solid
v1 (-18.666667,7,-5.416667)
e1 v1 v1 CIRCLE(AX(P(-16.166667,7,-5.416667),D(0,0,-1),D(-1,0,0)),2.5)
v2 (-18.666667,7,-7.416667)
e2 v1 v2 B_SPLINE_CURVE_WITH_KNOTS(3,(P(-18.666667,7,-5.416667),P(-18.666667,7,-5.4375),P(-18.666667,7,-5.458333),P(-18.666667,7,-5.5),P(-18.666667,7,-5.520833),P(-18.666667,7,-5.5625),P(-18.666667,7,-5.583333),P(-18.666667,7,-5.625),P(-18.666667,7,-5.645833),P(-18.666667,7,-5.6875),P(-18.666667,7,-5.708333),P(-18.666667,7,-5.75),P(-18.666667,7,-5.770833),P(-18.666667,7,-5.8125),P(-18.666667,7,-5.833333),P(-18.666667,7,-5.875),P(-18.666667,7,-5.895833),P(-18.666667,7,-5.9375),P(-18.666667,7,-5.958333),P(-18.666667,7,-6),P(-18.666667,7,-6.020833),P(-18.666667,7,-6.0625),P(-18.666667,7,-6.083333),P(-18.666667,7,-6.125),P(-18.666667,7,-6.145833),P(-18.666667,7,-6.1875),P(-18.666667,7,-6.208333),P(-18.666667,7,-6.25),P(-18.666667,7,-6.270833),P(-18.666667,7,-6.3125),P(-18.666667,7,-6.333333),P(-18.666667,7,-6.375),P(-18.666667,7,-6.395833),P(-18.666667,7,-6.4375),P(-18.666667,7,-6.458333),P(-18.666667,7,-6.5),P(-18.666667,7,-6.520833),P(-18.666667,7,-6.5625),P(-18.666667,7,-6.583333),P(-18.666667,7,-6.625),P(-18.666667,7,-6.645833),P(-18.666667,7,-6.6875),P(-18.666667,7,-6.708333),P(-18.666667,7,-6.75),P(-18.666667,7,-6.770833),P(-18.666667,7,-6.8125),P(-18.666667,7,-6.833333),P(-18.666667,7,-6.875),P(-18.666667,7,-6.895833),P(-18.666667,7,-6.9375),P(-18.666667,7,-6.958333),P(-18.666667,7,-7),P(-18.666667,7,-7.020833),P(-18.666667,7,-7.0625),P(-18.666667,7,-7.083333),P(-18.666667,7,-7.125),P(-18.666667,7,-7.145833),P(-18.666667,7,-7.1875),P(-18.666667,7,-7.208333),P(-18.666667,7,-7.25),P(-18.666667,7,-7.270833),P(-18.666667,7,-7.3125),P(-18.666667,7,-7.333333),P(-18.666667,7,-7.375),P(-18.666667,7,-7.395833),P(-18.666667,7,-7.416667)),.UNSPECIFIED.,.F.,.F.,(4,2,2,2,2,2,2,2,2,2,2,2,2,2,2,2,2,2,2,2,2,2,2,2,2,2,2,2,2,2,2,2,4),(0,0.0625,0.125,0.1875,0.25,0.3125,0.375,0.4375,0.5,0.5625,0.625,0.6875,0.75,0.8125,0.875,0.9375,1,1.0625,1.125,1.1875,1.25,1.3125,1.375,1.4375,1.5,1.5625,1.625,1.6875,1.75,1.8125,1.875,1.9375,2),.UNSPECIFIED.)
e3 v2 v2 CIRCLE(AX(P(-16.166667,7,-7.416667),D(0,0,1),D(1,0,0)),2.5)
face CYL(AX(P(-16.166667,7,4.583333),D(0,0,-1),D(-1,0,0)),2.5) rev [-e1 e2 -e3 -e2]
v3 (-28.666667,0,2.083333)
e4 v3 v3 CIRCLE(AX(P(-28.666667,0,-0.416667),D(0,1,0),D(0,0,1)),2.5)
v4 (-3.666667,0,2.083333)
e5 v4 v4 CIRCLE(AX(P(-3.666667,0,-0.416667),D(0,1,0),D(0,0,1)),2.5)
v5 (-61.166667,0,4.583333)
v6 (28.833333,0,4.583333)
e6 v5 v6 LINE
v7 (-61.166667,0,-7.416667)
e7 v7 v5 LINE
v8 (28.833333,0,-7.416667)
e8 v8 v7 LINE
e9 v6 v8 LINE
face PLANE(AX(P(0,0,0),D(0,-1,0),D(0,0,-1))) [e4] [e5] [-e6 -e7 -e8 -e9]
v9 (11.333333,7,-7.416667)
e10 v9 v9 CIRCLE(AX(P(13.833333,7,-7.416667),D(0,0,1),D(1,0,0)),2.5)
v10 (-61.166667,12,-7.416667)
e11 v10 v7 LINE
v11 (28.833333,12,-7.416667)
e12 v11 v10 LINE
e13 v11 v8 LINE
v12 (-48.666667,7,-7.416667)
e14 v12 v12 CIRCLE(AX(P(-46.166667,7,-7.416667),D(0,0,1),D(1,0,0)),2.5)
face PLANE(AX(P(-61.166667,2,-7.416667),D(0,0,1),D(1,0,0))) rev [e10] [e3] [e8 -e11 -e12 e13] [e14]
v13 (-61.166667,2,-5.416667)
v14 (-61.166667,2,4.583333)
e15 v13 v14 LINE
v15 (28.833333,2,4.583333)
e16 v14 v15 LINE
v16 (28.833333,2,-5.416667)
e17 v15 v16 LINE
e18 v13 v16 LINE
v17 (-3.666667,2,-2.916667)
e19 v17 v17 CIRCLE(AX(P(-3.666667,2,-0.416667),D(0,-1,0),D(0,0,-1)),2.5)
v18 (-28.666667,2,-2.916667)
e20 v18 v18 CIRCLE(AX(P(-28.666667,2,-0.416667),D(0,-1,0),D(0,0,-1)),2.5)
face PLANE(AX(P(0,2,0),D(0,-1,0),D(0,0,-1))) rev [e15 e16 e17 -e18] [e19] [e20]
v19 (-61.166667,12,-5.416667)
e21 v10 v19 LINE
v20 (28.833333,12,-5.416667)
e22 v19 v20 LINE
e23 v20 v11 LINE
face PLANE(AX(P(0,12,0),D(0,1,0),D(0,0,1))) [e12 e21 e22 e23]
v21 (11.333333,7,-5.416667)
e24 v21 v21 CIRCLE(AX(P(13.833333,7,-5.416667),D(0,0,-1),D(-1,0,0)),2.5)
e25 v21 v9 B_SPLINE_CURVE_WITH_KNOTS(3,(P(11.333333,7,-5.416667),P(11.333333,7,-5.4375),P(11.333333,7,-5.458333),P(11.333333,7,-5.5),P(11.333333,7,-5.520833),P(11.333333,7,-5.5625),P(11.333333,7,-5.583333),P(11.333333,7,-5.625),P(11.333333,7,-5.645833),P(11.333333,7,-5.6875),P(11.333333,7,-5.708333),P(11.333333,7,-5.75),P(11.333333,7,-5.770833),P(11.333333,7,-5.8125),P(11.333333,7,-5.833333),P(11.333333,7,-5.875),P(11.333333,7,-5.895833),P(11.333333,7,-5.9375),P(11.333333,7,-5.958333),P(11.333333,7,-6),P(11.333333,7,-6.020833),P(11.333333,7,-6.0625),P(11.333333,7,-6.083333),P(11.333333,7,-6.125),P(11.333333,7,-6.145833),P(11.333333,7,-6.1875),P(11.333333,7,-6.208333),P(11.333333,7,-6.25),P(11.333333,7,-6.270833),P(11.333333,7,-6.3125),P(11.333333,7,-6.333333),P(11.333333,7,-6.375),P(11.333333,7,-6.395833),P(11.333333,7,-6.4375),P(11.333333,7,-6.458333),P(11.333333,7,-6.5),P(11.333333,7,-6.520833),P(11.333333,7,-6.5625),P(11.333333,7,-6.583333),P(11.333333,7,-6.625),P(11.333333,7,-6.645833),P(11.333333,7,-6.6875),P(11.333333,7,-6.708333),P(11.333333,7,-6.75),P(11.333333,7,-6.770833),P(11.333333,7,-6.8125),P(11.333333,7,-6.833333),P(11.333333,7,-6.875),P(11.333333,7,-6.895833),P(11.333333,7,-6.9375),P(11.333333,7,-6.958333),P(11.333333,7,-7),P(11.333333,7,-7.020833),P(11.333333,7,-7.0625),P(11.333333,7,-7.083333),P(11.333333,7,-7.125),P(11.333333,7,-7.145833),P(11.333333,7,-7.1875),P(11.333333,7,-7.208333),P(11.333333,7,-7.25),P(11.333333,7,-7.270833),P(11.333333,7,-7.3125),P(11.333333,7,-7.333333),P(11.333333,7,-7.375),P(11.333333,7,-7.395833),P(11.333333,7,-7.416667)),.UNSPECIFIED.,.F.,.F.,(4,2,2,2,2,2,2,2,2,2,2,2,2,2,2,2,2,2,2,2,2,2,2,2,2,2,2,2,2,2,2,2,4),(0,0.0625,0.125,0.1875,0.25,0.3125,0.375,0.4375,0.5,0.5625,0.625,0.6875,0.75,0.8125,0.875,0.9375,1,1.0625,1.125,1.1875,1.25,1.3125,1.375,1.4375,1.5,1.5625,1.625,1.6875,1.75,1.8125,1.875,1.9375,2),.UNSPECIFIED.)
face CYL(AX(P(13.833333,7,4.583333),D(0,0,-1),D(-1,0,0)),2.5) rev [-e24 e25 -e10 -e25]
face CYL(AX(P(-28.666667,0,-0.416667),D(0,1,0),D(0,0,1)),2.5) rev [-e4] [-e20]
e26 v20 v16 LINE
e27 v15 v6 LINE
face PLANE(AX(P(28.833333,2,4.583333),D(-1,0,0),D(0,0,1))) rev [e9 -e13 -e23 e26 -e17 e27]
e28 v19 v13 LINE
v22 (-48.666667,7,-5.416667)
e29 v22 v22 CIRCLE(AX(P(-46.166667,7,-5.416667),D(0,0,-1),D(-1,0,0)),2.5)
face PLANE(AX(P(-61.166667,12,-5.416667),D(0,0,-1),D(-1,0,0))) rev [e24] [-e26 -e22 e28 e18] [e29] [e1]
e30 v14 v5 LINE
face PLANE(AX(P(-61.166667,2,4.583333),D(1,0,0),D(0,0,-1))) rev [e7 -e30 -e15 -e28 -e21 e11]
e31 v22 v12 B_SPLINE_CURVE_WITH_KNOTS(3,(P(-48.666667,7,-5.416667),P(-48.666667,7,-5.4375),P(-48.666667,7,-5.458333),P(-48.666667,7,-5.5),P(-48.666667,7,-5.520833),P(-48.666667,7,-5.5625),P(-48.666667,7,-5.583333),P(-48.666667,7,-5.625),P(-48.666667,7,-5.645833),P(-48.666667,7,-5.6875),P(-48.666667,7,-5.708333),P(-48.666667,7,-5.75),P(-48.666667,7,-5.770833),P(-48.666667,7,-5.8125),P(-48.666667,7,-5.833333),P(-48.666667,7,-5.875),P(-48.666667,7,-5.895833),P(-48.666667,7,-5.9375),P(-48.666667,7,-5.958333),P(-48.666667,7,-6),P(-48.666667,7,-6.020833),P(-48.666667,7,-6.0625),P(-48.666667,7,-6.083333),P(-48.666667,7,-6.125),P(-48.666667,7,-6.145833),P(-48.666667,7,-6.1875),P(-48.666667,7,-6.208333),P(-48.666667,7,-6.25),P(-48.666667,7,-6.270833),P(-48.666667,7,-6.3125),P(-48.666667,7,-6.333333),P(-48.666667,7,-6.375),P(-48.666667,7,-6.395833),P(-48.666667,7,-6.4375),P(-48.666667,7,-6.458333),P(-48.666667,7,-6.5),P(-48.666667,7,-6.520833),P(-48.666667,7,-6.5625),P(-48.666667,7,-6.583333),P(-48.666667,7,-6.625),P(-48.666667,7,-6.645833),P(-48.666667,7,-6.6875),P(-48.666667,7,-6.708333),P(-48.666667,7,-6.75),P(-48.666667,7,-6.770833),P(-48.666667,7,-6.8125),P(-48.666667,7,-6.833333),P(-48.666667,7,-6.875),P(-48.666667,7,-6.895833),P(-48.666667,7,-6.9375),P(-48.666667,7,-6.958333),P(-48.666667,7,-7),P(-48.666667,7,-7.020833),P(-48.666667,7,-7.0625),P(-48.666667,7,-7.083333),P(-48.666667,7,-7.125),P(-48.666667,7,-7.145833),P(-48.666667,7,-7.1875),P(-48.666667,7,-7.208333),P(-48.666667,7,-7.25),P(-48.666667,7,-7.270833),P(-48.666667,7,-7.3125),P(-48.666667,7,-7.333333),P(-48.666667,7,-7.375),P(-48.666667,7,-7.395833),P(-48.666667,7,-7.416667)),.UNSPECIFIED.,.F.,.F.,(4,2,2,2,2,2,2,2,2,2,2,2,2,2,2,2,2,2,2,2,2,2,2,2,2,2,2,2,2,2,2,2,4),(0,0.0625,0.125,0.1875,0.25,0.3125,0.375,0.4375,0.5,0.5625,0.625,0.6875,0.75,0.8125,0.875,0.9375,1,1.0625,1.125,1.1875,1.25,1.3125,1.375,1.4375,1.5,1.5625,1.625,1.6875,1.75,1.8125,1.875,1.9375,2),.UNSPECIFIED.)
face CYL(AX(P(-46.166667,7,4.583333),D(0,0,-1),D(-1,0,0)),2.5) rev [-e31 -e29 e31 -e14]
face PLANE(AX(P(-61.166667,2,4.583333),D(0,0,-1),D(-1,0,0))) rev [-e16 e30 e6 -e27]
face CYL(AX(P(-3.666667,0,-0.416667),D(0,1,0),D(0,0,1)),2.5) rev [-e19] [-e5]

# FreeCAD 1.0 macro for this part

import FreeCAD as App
import Part
import Sketcher
Q = App.Units.Quantity


def add_polygon(sketch, points):
    """Adds a closed chain of lines whose ends are joined by coincident constraints."""
    first, n = sketch.GeometryCount, len(points)
    for a, b in zip(points, points[1:] + points[:1]):
        sketch.addGeometry(Part.LineSegment(App.Vector(*a, 0), App.Vector(*b, 0)), False)
    for i in range(n):
        sketch.addConstraint(Sketcher.Constraint("Coincident", first + i, 2, first + (i + 1) % n, 1))

doc = App.newDocument("Part")
params = doc.addObject("Spreadsheet::Sheet", "Params")
for row, (alias, value) in enumerate([
    ("sketch1_width", "90 mm"),
    ("sketch1_height", "12 mm"),
    ("pad1_length", "2 mm"),
    ("sketch2_width", "90 mm"),
    ("sketch2_height", "2 mm"),
    ("pad2_length", "10 mm"),
    ("sketch3_diameter", "5 mm"),
    ("sketch4_diameter", "5 mm"),
], start=1):
    params.set(f"A{row}", alias)
    params.set(f"B{row}", "=" + value)
    params.setAlias(f"B{row}", alias)

body = doc.addObject("PartDesign::Body", "Body")

# Sketch on XZ plane
sketch1 = body.newObject("Sketcher::SketchObject", "Sketch")
sketch1.AttachmentSupport = (doc.getObject("XZ_Plane"), [""])
sketch1.MapMode = "FlatFace"
add_polygon(sketch1, [(-61, -7), (-61, 5), (29, 5), (29, -7)])  # lines 0-3
sketch1.addConstraint([
    Sketcher.Constraint("Vertical", 0),
    Sketcher.Constraint("Horizontal", 1),
    Sketcher.Constraint("Vertical", 2),
    Sketcher.Constraint("Horizontal", 3),
    Sketcher.Constraint("DistanceX", 1, 1, 1, 2, Q("90 mm")),
    Sketcher.Constraint("DistanceY", 0, 1, 0, 2, Q("12 mm")),
    Sketcher.Constraint("DistanceX", 0, 2, -1, 1, Q("61.166667 mm")),
    Sketcher.Constraint("DistanceY", -1, 1, 0, 2, Q("4.583333 mm")),
])
sketch1.setExpression("Constraints[8]", "Params.sketch1_width")
sketch1.setExpression("Constraints[9]", "Params.sketch1_height")
pad1 = body.newObject("PartDesign::Pad", "Pad")
pad1.Profile = sketch1
pad1.setExpression("Length", "Params.pad1_length")
pad1.Reversed = True

# Sketch on XZ plane
sketch2 = body.newObject("Sketcher::SketchObject", "Sketch001")
sketch2.AttachmentSupport = (doc.getObject("XZ_Plane"), [""])
sketch2.MapMode = "FlatFace"
sketch2.AttachmentOffset = App.Placement(App.Vector(0, 0, -2), App.Rotation())
add_polygon(sketch2, [(-61.2, -7.4), (-61.2, -5.4), (28.8, -5.4), (28.8, -7.4)])  # lines 0-3
sketch2.addConstraint([
    Sketcher.Constraint("Vertical", 0),
    Sketcher.Constraint("Horizontal", 1),
    Sketcher.Constraint("Vertical", 2),
    Sketcher.Constraint("Horizontal", 3),
    Sketcher.Constraint("DistanceX", 1, 1, 1, 2, Q("90 mm")),
    Sketcher.Constraint("DistanceY", 0, 1, 0, 2, Q("2 mm")),
    Sketcher.Constraint("DistanceX", 0, 2, -1, 1, Q("61.166667 mm")),
    Sketcher.Constraint("DistanceY", 0, 2, -1, 1, Q("5.416667 mm")),
])
sketch2.setExpression("Constraints[8]", "Params.sketch2_width")
sketch2.setExpression("Constraints[9]", "Params.sketch2_height")
pad2 = body.newObject("PartDesign::Pad", "Pad001")
pad2.Profile = sketch2
pad2.setExpression("Length", "Params.pad2_length")
pad2.Reversed = True

# Sketch on XZ plane
sketch3 = body.newObject("Sketcher::SketchObject", "Sketch002")
sketch3.AttachmentSupport = (doc.getObject("XZ_Plane"), [""])
sketch3.MapMode = "FlatFace"
sketch3.AttachmentOffset = App.Placement(App.Vector(0, 0, -2), App.Rotation())
sketch3.addGeometry([
    Part.Circle(App.Vector(-28.7, -0.4, 0), App.Vector(0, 0, 1), 2.5),
    Part.Circle(App.Vector(-3.7, -0.4, 0), App.Vector(0, 0, 1), 2.5),
], False)
sketch3.addConstraint([
    Sketcher.Constraint("Equal", 0, 1),
    Sketcher.Constraint("Horizontal", 0, 3, 1, 3),
    Sketcher.Constraint("Diameter", 0, Q("5 mm")),
    Sketcher.Constraint("DistanceX", 0, 3, 1, 3, Q("25 mm")),
    Sketcher.Constraint("DistanceX", 0, 3, -1, 1, Q("28.666667 mm")),
    Sketcher.Constraint("DistanceY", 0, 3, -1, 1, Q("0.416667 mm")),
])
sketch3.setExpression("Constraints[2]", "Params.sketch3_diameter")
pocket1 = body.newObject("PartDesign::Pocket", "Pocket")
pocket1.Profile = sketch3
pocket1.Type = "ThroughAll"
pocket1.Midplane = True

# Sketch on XY plane
sketch4 = body.newObject("Sketcher::SketchObject", "Sketch003")
sketch4.AttachmentSupport = (doc.getObject("XY_Plane"), [""])
sketch4.MapMode = "FlatFace"
sketch4.AttachmentOffset = App.Placement(App.Vector(0, 0, -7.416667), App.Rotation())
sketch4.addGeometry([
    Part.Circle(App.Vector(13.8, 7, 0), App.Vector(0, 0, 1), 2.5),
    Part.Circle(App.Vector(-16.2, 7, 0), App.Vector(0, 0, 1), 2.5),
    Part.Circle(App.Vector(-46.2, 7, 0), App.Vector(0, 0, 1), 2.5),
], False)
sketch4.addConstraint([
    Sketcher.Constraint("Equal", 0, 1),
    Sketcher.Constraint("Equal", 1, 2),
    Sketcher.Constraint("Horizontal", 0, 3, 1, 3),
    Sketcher.Constraint("Horizontal", 1, 3, 2, 3),
    Sketcher.Constraint("Diameter", 0, Q("5 mm")),
    Sketcher.Constraint("DistanceY", -1, 1, 0, 3, Q("7 mm")),
    Sketcher.Constraint("DistanceX", 1, 3, 0, 3, Q("30 mm")),
    Sketcher.Constraint("DistanceX", 2, 3, 1, 3, Q("30 mm")),
    Sketcher.Constraint("DistanceX", -1, 1, 0, 3, Q("13.833333 mm")),
])
sketch4.setExpression("Constraints[4]", "Params.sketch4_diameter")
pocket2 = body.newObject("PartDesign::Pocket", "Pocket001")
pocket2.Profile = sketch4
pocket2.Type = "ThroughAll"
pocket2.Midplane = True

doc.recompute()
